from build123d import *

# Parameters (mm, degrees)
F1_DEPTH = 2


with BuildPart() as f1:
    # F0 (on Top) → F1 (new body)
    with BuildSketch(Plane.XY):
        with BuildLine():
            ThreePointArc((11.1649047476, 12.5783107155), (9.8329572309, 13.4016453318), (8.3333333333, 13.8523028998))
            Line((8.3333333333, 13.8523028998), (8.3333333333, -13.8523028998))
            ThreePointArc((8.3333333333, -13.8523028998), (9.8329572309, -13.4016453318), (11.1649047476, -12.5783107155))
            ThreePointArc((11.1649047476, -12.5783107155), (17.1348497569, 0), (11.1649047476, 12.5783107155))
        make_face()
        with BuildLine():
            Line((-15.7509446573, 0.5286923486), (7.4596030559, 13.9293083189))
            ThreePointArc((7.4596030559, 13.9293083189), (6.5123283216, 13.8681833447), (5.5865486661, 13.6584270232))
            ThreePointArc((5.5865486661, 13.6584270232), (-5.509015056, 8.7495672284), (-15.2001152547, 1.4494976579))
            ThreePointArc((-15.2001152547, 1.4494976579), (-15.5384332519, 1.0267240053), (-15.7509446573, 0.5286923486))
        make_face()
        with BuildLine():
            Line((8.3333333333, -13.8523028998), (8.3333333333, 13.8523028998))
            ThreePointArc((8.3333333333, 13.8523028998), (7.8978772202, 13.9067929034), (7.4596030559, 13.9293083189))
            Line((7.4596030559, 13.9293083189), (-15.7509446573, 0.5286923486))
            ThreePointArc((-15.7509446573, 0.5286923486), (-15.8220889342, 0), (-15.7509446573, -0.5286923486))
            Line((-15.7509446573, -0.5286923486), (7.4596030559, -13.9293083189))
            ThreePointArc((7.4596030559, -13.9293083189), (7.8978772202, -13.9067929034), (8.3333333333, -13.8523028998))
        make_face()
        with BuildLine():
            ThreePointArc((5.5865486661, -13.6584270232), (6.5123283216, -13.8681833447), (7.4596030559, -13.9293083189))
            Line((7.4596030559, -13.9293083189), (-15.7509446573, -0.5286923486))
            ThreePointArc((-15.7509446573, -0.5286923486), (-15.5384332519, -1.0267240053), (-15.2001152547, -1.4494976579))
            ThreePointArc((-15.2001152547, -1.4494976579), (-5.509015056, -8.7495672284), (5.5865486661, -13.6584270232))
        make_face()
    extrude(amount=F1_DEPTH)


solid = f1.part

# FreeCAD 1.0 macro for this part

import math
import FreeCAD as App
import Part
import Sketcher
Q = App.Units.Quantity

doc = App.newDocument("Part")
params = doc.addObject("Spreadsheet::Sheet", "Params")
for row, (alias, value) in enumerate([
    ("sketch1_radius", "6 mm"),
    ("sketch1_radius2", "2 mm"),
    ("pad1_length", "2 mm"),
], start=1):
    params.set(f"A{row}", alias)
    params.set(f"B{row}", "=" + value)
    params.setAlias(f"B{row}", alias)

body = doc.addObject("PartDesign::Body", "Body")

# Sketch on XY plane
sketch1 = body.newObject("Sketcher::SketchObject", "Sketch")
sketch1.AttachmentSupport = (doc.getObject("XY_Plane"), [""])
sketch1.MapMode = "FlatFace"
sketch1.addGeometry([
    Part.ArcOfCircle(Part.Circle(App.Vector(7.371115, 7.929961, 0), App.Vector(0, 0, 1), 6), math.radians(50.780104), math.radians(80.771639)),  # 0
    Part.ArcOfCircle(Part.Circle(App.Vector(7.371115, 7.929961, 0), App.Vector(0, 0, 1), 6), math.radians(80.771639), math.radians(89.154967)),  # 1
    Part.ArcOfCircle(Part.Circle(App.Vector(7.371115, 7.929961, 0), App.Vector(0, 0, 1), 6), math.radians(89.154967), math.radians(107.303167)),  # 2
    Part.ArcOfCircle(Part.Circle(App.Vector(21.375, -37.022586, 0), App.Vector(0, 0, 1), 53.083333), math.radians(107.303167), math.radians(133.552043)),  # 3
    Part.ArcOfCircle(Part.Circle(App.Vector(-13.822089, 0, 0), App.Vector(0, 0, 1), 2), math.radians(133.552043), math.radians(164.671894)),  # 4
    Part.ArcOfCircle(Part.Circle(App.Vector(-13.822089, 0, 0), App.Vector(0, 0, 1), 2), math.radians(164.671894), math.radians(195.328106)),  # 5
    Part.ArcOfCircle(Part.Circle(App.Vector(-13.822089, 0, 0), App.Vector(0, 0, 1), 2), math.radians(-164.671894), math.radians(-133.552043)),  # 6
    Part.ArcOfCircle(Part.Circle(App.Vector(21.375, 37.022586, 0), App.Vector(0, 0, 1), 53.083333), math.radians(-133.552043), math.radians(-107.303167)),  # 7
    Part.ArcOfCircle(Part.Circle(App.Vector(7.371115, -7.929961, 0), App.Vector(0, 0, 1), 6), math.radians(-107.303167), math.radians(-89.154967)),  # 8
    Part.ArcOfCircle(Part.Circle(App.Vector(7.371115, -7.929961, 0), App.Vector(0, 0, 1), 6), math.radians(-89.154967), math.radians(-80.771639)),  # 9
    Part.ArcOfCircle(Part.Circle(App.Vector(7.371115, -7.929961, 0), App.Vector(0, 0, 1), 6), math.radians(-80.771639), math.radians(-50.780104)),  # 10
    Part.ArcOfCircle(Part.Circle(App.Vector(0.89901, 0, 0), App.Vector(0, 0, 1), 16.23584), math.radians(-50.780104), math.radians(50.780104)),  # 11
], False)
sketch1.addConstraint([
    Sketcher.Constraint("Tangent", 0, 2, 1, 1),
    Sketcher.Constraint("Tangent", 1, 2, 2, 1),
    Sketcher.Constraint("Tangent", 2, 2, 3, 1),
    Sketcher.Constraint("Tangent", 3, 2, 4, 1),
    Sketcher.Constraint("Tangent", 4, 2, 5, 1),
    Sketcher.Constraint("Tangent", 5, 2, 6, 1),
    Sketcher.Constraint("Tangent", 6, 2, 7, 1),
    Sketcher.Constraint("Tangent", 7, 2, 8, 1),
    Sketcher.Constraint("Tangent", 8, 2, 9, 1),
    Sketcher.Constraint("Tangent", 9, 2, 10, 1),
    Sketcher.Constraint("Tangent", 10, 2, 11, 1),
    Sketcher.Constraint("Tangent", 11, 2, 0, 1),
    Sketcher.Constraint("Coincident", 2, 3, 0, 3),
    Sketcher.Constraint("Coincident", 6, 3, 4, 3),
    Sketcher.Constraint("Coincident", 10, 3, 8, 3),
    Sketcher.Constraint("Equal", 3, 7),
    Sketcher.Constraint("Equal", 2, 8),
    Sketcher.Constraint("Symmetric", 3, 3, 7, 3, -1),
    Sketcher.Constraint("Symmetric", 1, 2, 8, 2, -1),
    Sketcher.Constraint("Vertical", 4, 2, 5, 2),
    Sketcher.Constraint("Vertical", 0, 2, 9, 2),
    Sketcher.Constraint("Radius", 0, Q("6 mm")),
    Sketcher.Constraint("Radius", 4, Q("2 mm")),
    Sketcher.Constraint("Radius", 11, Q("16.23584 mm")),
    Sketcher.Constraint("DistanceX", -1, 1, 3, 3, Q("21.375 mm")),
    Sketcher.Constraint("Radius", 3, Q("53.083333 mm")),
    Sketcher.Constraint("DistanceX", 8, 2, 10, 2, Q("3.705302 mm")),
    Sketcher.Constraint("DistanceY", -1, 1, 0, 3, Q("7.929961 mm")),
    Sketcher.Constraint("DistanceX", 4, 3, -1, 1, Q("13.822089 mm")),
    Sketcher.Constraint("DistanceX", 2, 3, 0, 2, Q("0.962219 mm")),
    Sketcher.Constraint("DistanceX", 4, 2, 3, 2, Q("0.550829 mm")),
])
sketch1.setExpression("Constraints[21]", "Params.sketch1_radius")
sketch1.setExpression("Constraints[22]", "Params.sketch1_radius2")
pad1 = body.newObject("PartDesign::Pad", "Pad")
pad1.Profile = sketch1
pad1.setExpression("Length", "Params.pad1_length")

doc.recompute()
